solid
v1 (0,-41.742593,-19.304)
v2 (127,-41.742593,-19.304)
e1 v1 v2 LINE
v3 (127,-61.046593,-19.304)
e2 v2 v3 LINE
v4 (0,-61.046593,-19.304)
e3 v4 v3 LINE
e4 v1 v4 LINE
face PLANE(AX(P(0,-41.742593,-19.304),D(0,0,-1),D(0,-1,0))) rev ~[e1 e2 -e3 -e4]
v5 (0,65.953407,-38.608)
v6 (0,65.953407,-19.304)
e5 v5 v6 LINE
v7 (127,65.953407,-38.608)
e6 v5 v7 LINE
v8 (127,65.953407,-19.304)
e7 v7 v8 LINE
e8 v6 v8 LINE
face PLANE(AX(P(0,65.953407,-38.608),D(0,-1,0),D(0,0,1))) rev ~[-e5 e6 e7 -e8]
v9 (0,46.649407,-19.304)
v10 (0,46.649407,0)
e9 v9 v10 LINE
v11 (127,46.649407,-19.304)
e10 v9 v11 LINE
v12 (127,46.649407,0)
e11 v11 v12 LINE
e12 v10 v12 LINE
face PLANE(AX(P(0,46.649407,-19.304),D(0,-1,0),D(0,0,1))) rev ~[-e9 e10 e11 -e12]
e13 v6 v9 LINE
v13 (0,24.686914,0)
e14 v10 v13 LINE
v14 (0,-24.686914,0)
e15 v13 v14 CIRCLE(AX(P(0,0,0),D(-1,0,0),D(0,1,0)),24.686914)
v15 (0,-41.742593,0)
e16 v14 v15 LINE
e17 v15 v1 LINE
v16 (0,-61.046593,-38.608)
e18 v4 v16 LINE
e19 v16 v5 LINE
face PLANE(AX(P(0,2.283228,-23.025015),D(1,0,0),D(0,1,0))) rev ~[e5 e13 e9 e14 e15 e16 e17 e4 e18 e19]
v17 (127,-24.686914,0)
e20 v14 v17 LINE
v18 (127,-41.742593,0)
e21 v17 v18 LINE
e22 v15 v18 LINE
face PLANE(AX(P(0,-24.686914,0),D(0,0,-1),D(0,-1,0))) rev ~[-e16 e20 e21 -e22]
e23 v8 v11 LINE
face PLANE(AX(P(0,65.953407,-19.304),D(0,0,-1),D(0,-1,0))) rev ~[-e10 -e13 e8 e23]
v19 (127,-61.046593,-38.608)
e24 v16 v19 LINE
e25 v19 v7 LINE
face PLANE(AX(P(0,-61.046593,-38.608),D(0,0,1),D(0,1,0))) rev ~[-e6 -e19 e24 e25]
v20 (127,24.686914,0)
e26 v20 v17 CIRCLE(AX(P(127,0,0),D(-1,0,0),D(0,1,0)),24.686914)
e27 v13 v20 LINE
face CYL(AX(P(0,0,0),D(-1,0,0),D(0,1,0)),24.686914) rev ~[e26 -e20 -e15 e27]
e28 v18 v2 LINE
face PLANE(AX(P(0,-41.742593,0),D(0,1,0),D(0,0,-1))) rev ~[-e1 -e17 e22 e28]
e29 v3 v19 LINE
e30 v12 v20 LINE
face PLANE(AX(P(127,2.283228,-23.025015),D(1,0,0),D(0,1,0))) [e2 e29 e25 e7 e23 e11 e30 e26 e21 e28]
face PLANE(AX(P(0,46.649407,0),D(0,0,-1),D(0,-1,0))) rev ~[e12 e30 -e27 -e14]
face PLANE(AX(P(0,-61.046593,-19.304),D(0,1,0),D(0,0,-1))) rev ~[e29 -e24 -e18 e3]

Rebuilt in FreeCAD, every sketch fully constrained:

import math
import FreeCAD as App
import Part
import Sketcher
from FreeCAD import Vector
Q = App.Units.Quantity

doc = App.newDocument("Part")
body = doc.addObject("PartDesign::Body", "Body")

# Sketch on YZ plane
sketch1 = body.newObject("Sketcher::SketchObject", "Sketch")
sketch1.AttachmentSupport = (doc.getObject("YZ_Plane"), [""])
sketch1.MapMode = "FlatFace"
sketch1.addGeometry([
    Part.LineSegment(Vector(-41.742593, -19.304, 0), Vector(-61.046593, -19.304, 0)),  # 0
    Part.LineSegment(Vector(-61.046593, -19.304, 0), Vector(-61.046593, -38.608, 0)),  # 1
    Part.LineSegment(Vector(-61.046593, -38.608, 0), Vector(65.953407, -38.608, 0)),  # 2
    Part.LineSegment(Vector(65.953407, -38.608, 0), Vector(65.953407, -19.304, 0)),  # 3
    Part.LineSegment(Vector(65.953407, -19.304, 0), Vector(46.649407, -19.304, 0)),  # 4
    Part.LineSegment(Vector(46.649407, -19.304, 0), Vector(46.649407, 0, 0)),  # 5
    Part.LineSegment(Vector(46.649407, 0, 0), Vector(24.686914, 0, 0)),  # 6
    Part.ArcOfCircle(Part.Circle(Vector(0, 0, 0), Vector(0, 0, 1), 24.686914), math.radians(180), math.radians(360)),  # 7
    Part.LineSegment(Vector(-24.686914, 0, 0), Vector(-41.742593, 0, 0)),  # 8
    Part.LineSegment(Vector(-41.742593, 0, 0), Vector(-41.742593, -19.304, 0)),  # 9
], False)
sketch1.addConstraint([
    Sketcher.Constraint("Coincident", 0, 2, 1, 1),
    Sketcher.Constraint("Coincident", 1, 2, 2, 1),
    Sketcher.Constraint("Coincident", 2, 2, 3, 1),
    Sketcher.Constraint("Coincident", 3, 2, 4, 1),
    Sketcher.Constraint("Coincident", 4, 2, 5, 1),
    Sketcher.Constraint("Coincident", 5, 2, 6, 1),
    Sketcher.Constraint("Coincident", 6, 2, 7, 2),
    Sketcher.Constraint("Coincident", 7, 1, 8, 1),
    Sketcher.Constraint("Coincident", 8, 2, 9, 1),
    Sketcher.Constraint("Coincident", 9, 2, 0, 1),
    Sketcher.Constraint("Horizontal", 0),
    Sketcher.Constraint("Vertical", 1),
    Sketcher.Constraint("Horizontal", 2),
    Sketcher.Constraint("Vertical", 3),
    Sketcher.Constraint("Horizontal", 4),
    Sketcher.Constraint("Vertical", 5),
    Sketcher.Constraint("Horizontal", 6),
    Sketcher.Constraint("Horizontal", 8),
    Sketcher.Constraint("Vertical", 9),
    Sketcher.Constraint("Coincident", 7, 3, -1, 1),
    Sketcher.Constraint("PointOnObject", 5, 2, -1),
    Sketcher.Constraint("PointOnObject", 7, 1, -1),
    Sketcher.Constraint("Horizontal", 0, 2, 3, 2),
    Sketcher.Constraint("Equal", 0, 4),
    Sketcher.Constraint("Equal", 4, 1),
    Sketcher.Constraint("Equal", 3, 5),
    Sketcher.Constraint("DistanceX", 2, 1, 2, 2, Q("5 in")),
    Sketcher.Constraint("DistanceX", 0, 2, 0, 1, Q("0.76 in")),
    Sketcher.Constraint("Radius", 7, Q("24.686914 mm")),
    Sketcher.Constraint("DistanceX", 8, 2, 8, 1, Q("17.055679 mm")),
])
pad1 = body.newObject("PartDesign::Pad", "Pad")
pad1.Profile = sketch1
pad1.Length = Q("5 in")

doc.recompute()
